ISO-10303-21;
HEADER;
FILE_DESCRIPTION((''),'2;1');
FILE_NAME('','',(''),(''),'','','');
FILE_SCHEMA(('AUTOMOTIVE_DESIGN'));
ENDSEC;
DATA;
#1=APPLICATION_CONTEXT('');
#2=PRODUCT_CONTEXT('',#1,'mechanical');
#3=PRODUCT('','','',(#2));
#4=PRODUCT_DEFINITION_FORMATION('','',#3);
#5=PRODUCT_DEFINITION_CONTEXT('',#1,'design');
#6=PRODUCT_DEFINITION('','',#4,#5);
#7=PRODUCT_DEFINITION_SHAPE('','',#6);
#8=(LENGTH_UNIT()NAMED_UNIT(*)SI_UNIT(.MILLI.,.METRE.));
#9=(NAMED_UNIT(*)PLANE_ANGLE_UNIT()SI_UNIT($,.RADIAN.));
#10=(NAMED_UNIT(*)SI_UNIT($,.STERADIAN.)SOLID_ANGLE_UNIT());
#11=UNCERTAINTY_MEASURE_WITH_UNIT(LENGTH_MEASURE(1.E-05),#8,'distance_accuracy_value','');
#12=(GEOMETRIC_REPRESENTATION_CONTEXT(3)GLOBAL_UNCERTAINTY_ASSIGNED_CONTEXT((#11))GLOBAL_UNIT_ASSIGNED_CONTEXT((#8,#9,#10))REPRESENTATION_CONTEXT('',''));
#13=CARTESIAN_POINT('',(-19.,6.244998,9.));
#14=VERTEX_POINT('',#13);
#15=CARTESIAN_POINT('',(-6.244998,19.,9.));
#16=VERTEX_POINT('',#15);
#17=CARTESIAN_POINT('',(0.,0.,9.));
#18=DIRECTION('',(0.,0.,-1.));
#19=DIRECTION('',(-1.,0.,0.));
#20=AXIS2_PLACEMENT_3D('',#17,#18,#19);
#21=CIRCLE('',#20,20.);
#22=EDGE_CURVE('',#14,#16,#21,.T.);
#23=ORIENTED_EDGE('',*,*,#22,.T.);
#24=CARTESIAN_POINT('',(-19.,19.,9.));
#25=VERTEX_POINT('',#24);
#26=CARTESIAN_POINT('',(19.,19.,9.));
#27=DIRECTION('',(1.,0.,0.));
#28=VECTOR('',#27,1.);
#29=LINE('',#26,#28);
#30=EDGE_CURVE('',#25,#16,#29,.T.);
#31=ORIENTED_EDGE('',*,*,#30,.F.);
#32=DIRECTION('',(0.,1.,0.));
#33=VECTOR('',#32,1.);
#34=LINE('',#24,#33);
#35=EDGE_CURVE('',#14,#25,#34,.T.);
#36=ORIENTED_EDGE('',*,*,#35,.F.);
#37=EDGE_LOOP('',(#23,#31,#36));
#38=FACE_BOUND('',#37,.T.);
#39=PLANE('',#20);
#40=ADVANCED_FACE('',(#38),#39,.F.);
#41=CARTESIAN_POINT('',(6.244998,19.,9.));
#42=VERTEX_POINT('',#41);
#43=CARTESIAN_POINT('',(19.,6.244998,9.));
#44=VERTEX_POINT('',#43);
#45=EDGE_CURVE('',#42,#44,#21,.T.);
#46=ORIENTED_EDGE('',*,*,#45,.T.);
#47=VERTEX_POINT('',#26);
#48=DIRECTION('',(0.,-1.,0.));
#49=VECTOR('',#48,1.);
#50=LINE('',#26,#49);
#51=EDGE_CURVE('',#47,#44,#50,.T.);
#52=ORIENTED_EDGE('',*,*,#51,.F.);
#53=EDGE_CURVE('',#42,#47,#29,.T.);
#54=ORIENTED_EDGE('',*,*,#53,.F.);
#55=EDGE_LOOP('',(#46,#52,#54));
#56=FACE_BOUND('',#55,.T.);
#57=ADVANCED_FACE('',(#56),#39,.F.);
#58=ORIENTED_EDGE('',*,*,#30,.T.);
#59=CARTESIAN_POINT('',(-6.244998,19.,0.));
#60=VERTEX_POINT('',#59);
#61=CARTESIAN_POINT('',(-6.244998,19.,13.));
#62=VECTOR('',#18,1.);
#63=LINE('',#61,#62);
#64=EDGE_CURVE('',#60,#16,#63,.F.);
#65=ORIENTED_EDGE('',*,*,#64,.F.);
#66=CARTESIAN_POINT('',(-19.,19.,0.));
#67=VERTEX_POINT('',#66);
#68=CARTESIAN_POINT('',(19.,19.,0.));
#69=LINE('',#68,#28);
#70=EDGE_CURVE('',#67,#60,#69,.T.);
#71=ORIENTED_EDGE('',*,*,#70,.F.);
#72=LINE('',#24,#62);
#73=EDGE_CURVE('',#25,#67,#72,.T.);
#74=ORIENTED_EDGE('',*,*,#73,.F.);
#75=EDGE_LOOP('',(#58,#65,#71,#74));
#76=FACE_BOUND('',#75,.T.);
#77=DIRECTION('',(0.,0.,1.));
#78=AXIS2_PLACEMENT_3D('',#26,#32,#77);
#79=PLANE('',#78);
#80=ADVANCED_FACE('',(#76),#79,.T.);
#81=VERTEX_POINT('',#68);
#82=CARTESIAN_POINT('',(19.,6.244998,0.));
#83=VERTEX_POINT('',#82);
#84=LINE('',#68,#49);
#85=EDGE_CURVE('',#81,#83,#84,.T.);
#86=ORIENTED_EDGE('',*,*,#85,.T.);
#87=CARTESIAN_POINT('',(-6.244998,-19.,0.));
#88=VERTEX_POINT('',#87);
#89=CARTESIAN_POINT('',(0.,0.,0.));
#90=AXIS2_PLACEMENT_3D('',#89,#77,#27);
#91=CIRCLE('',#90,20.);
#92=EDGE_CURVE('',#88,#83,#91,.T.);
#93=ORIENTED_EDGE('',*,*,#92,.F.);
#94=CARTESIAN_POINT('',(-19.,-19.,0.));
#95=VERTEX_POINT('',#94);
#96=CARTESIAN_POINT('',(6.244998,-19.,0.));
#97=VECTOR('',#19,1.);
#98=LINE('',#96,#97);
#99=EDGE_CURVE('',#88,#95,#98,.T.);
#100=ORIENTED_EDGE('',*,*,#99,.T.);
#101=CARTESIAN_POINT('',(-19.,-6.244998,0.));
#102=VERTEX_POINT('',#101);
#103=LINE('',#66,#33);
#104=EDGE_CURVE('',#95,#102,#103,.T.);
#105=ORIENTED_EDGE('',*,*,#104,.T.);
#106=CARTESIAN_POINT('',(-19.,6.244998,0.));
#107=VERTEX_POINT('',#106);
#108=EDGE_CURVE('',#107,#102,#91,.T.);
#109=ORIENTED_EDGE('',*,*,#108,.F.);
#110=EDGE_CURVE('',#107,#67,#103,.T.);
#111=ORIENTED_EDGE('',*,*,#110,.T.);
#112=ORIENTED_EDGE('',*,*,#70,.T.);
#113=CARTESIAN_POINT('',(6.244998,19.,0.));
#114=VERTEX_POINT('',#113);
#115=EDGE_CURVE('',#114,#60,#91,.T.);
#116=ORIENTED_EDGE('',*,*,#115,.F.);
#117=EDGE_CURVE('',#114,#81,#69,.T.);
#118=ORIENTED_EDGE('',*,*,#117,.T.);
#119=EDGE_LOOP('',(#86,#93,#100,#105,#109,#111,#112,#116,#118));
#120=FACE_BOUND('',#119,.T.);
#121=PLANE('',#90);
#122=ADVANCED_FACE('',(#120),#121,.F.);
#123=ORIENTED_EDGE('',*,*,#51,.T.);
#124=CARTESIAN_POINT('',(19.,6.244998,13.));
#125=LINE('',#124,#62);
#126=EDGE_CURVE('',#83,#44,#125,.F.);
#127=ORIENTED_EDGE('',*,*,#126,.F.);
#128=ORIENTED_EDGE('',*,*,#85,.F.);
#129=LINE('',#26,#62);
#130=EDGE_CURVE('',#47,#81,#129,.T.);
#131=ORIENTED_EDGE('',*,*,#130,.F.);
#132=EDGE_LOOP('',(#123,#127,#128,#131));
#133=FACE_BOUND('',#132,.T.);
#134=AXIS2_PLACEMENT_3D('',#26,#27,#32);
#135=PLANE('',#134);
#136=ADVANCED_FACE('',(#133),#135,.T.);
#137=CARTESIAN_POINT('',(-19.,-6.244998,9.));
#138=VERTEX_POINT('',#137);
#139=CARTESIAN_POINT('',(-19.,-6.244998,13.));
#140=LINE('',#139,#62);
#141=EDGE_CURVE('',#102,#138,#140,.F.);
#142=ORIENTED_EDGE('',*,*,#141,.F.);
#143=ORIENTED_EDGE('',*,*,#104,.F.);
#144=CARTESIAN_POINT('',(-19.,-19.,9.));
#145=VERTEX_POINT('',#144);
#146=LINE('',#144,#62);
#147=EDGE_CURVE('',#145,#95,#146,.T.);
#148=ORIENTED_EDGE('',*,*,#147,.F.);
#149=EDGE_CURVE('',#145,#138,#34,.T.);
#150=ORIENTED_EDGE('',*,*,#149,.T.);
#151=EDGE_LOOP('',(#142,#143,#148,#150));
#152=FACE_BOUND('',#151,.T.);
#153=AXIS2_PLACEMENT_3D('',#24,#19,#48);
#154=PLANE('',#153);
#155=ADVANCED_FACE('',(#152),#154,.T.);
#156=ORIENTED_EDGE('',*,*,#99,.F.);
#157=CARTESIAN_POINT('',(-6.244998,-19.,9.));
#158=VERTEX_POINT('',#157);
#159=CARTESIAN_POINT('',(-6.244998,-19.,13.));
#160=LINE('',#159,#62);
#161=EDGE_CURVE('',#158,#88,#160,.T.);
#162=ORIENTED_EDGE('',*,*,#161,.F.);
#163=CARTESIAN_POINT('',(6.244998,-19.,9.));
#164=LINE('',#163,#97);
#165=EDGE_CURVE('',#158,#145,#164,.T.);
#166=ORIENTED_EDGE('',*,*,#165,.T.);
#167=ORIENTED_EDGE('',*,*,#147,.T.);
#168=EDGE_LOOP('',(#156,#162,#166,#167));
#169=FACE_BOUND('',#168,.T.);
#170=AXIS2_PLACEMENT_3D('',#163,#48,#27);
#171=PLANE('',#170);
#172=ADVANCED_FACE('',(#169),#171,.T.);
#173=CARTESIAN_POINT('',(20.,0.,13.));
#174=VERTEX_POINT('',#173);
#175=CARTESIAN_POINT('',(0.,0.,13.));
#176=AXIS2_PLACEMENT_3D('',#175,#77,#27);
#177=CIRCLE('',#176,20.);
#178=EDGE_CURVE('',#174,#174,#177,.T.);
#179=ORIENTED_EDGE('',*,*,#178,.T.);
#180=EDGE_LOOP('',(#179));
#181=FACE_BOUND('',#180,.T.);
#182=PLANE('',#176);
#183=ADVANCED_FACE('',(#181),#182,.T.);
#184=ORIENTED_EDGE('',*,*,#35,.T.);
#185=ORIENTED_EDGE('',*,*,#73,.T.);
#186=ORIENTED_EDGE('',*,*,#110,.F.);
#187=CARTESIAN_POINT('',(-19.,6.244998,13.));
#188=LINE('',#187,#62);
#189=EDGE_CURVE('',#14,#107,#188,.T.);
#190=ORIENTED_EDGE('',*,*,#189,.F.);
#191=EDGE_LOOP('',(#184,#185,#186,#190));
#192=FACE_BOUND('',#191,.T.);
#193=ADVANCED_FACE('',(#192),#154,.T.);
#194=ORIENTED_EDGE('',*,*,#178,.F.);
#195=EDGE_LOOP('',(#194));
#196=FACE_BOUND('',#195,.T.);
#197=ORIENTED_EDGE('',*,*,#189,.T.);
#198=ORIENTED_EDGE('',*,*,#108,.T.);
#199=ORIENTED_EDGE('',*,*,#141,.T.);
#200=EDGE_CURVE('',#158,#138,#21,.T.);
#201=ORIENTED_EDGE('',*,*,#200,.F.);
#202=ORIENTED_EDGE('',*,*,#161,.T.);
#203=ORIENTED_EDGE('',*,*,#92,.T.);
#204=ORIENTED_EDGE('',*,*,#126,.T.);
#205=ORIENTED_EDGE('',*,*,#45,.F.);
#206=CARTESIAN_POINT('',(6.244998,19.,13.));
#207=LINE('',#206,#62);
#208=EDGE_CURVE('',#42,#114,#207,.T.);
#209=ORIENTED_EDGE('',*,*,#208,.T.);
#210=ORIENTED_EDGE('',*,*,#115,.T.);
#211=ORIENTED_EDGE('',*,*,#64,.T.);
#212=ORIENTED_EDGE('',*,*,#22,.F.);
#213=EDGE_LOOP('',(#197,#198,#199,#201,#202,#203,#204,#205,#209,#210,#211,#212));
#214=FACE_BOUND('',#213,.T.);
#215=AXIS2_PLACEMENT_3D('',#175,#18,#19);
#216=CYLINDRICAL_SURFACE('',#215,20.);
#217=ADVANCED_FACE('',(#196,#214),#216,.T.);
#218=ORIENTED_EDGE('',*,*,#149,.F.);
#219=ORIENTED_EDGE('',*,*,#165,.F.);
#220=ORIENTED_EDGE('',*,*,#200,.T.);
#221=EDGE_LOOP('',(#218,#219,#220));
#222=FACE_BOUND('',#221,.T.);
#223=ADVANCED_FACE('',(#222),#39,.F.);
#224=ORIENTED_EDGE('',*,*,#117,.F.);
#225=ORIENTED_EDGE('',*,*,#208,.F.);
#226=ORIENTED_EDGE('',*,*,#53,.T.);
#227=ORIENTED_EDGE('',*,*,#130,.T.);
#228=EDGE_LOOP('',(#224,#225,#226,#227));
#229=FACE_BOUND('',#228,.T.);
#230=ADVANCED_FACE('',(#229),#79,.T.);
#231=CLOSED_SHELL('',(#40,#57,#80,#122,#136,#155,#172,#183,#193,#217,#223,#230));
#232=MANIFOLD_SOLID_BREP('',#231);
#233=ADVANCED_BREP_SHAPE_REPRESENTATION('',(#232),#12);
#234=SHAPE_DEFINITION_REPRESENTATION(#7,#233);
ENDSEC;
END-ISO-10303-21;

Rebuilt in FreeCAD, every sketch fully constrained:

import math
import FreeCAD as App
import Part
import Sketcher
Q = App.Units.Quantity

doc = App.newDocument("Part")
body = doc.addObject("PartDesign::Body", "Body")

# Sketch on XY plane
sketch1 = body.newObject("Sketcher::SketchObject", "Sketch")
sketch1.AttachmentSupport = (doc.getObject("XY_Plane"), [""])
sketch1.MapMode = "FlatFace"
sketch1.addGeometry(Part.Circle(App.Vector(0, 0, 0), App.Vector(0, 0, 1), 20), False)
sketch1.addConstraint(Sketcher.Constraint("Coincident", 0, 3, -1, 1))
sketch1.addConstraint(Sketcher.Constraint("Diameter", 0, Q("40 mm")))
pad1 = body.newObject("PartDesign::Pad", "Pad")
pad1.Profile = sketch1
pad1.Length = 13

# Sketch on XY plane
sketch2 = body.newObject("Sketcher::SketchObject", "Sketch001")
sketch2.AttachmentSupport = (doc.getObject("XY_Plane"), [""])
sketch2.MapMode = "FlatFace"
sketch2.addGeometry(Part.LineSegment(App.Vector(-19, 19, 0), App.Vector(19, 19, 0)), False)
sketch2.addGeometry(Part.LineSegment(App.Vector(19, 19, 0), App.Vector(19, -6.244998, 0)), False)
sketch2.addGeometry(Part.ArcOfCircle(Part.Circle(App.Vector(0, 0, 0), App.Vector(0, 0, 1), 20), math.radians(-71.805128), math.radians(-18.194872)), False)
sketch2.addGeometry(Part.LineSegment(App.Vector(6.244998, -19, 0), App.Vector(-19, -19, 0)), False)
sketch2.addGeometry(Part.LineSegment(App.Vector(-19, -19, 0), App.Vector(-19, 19, 0)), False)
sketch2.addConstraint(Sketcher.Constraint("Coincident", 0, 2, 1, 1))
sketch2.addConstraint(Sketcher.Constraint("Coincident", 1, 2, 2, 2))
sketch2.addConstraint(Sketcher.Constraint("Coincident", 2, 1, 3, 1))
sketch2.addConstraint(Sketcher.Constraint("Coincident", 3, 2, 4, 1))
sketch2.addConstraint(Sketcher.Constraint("Coincident", 4, 2, 0, 1))
sketch2.addConstraint(Sketcher.Constraint("Horizontal", 0))
sketch2.addConstraint(Sketcher.Constraint("Vertical", 1))
sketch2.addConstraint(Sketcher.Constraint("Horizontal", 3))
sketch2.addConstraint(Sketcher.Constraint("Vertical", 4))
sketch2.addConstraint(Sketcher.Constraint("Coincident", 2, 3, -1, 1))
sketch2.addConstraint(Sketcher.Constraint("Symmetric", 0, 2, 3, 2, -1, 1))
sketch2.addConstraint(Sketcher.Constraint("Equal", 3, 1))
sketch2.addConstraint(Sketcher.Constraint("Radius", 2, Q("20 mm")))
sketch2.addConstraint(Sketcher.Constraint("DistanceX", 0, 1, 0, 2, Q("38 mm")))
pad2 = body.newObject("PartDesign::Pad", "Pad001")
pad2.Profile = sketch2
pad2.Length = 9

doc.recompute()
